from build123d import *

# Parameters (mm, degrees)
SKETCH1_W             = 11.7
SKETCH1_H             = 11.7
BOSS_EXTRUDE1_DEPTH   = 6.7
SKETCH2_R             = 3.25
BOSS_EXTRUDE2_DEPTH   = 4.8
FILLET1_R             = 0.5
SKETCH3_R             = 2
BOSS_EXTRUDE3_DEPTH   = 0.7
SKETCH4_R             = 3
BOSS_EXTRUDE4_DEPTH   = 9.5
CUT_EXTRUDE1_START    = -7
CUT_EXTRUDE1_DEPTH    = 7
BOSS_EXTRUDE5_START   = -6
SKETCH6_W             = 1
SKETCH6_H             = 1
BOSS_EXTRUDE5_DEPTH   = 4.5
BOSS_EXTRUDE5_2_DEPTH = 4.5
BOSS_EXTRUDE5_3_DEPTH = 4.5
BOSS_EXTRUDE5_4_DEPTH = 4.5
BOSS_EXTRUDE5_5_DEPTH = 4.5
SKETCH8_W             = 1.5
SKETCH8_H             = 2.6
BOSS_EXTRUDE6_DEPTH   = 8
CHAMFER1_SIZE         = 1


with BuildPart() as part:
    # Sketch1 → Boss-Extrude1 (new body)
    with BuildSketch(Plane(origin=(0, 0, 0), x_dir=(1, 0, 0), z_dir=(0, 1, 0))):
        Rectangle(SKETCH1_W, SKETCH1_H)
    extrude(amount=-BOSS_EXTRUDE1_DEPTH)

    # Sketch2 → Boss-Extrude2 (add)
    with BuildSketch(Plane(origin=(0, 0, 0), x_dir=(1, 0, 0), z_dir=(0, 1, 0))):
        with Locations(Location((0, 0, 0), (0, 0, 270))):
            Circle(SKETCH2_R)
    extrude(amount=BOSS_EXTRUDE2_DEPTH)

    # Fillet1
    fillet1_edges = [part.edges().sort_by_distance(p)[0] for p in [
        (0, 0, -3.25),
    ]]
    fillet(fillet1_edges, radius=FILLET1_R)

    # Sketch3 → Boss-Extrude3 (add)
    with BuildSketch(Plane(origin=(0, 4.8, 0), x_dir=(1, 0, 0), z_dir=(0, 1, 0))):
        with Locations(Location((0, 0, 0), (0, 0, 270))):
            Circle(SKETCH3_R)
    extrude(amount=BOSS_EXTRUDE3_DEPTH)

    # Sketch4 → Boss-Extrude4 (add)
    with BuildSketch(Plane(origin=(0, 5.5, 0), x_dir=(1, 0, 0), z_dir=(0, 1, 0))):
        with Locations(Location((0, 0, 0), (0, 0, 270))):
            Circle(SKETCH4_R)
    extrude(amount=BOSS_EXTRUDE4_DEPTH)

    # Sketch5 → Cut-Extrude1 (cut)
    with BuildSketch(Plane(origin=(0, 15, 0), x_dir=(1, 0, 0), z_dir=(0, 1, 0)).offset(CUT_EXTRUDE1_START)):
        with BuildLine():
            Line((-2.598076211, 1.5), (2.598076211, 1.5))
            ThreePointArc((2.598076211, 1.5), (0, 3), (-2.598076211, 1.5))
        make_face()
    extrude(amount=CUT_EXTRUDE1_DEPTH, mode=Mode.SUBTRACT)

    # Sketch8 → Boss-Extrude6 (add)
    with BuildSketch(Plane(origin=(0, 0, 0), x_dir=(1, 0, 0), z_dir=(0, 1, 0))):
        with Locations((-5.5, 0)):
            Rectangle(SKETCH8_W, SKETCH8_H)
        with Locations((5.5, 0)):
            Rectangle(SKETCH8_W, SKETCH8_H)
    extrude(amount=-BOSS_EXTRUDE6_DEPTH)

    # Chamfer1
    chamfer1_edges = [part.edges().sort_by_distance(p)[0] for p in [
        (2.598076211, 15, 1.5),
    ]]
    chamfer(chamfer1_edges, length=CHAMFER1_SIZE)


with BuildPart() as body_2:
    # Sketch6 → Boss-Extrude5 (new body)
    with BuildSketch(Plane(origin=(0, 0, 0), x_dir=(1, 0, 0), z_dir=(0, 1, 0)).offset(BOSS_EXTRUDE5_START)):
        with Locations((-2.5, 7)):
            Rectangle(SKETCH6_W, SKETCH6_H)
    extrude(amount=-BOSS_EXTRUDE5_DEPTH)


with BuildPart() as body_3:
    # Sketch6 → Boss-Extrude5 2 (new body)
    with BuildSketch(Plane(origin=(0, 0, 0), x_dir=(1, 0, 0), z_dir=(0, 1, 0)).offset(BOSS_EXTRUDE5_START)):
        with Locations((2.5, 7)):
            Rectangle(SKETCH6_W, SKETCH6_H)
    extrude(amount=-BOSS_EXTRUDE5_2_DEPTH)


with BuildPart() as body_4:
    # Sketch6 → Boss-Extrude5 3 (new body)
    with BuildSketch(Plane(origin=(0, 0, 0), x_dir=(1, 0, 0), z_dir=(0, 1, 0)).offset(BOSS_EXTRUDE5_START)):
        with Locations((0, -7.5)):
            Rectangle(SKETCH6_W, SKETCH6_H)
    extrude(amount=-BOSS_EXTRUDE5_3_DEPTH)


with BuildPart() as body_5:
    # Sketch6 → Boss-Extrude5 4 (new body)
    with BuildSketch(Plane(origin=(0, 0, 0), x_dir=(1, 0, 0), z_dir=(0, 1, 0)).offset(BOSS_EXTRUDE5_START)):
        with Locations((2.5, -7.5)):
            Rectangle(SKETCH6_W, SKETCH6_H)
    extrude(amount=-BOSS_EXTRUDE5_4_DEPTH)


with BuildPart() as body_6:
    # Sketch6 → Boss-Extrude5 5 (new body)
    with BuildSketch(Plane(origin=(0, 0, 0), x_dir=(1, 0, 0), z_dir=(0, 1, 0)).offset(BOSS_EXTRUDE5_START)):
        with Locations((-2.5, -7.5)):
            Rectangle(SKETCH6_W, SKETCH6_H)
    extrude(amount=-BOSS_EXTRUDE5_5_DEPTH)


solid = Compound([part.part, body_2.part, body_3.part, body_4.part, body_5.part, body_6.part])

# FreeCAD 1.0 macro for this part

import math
import FreeCAD as App
import Part
import Sketcher

V = App.Vector


def edges_at(feature, points):
    """Names of the edges that pass closest to the given points."""
    edges = feature.Shape.Edges
    near = lambda p: min(range(len(edges)), key=lambda i: edges[i].distToShape(Part.Vertex(*p))[0])
    return sorted({f"Edge{near(p) + 1}" for p in points})


def add_polygon(sketch, points):
    """Adds a closed chain of lines whose ends are joined by coincident constraints."""
    first, n = sketch.GeometryCount, len(points)
    for a, b in zip(points, points[1:] + points[:1]):
        sketch.addGeometry(Part.LineSegment(App.Vector(*a, 0), App.Vector(*b, 0)), False)
    for i in range(n):
        sketch.addConstraint(Sketcher.Constraint("Coincident", first + i, 2, first + (i + 1) % n, 1))

doc = App.newDocument("Part")
body = doc.addObject("PartDesign::Body", "Body")

# Sketch on XZ plane
sketch1 = body.newObject("Sketcher::SketchObject", "Sketch")
sketch1.AttachmentSupport = (doc.getObject("XZ_Plane"), [""])
sketch1.MapMode = "FlatFace"
add_polygon(sketch1, [(-6, -6), (-6, 6), (6, 6), (6, -6)])  # lines 0-3
sketch1.addConstraint(Sketcher.Constraint("Vertical", 0))
sketch1.addConstraint(Sketcher.Constraint("Horizontal", 1))
sketch1.addConstraint(Sketcher.Constraint("Vertical", 2))
sketch1.addConstraint(Sketcher.Constraint("Horizontal", 3))
sketch1.addConstraint(Sketcher.Constraint("Symmetric", 0, 2, 2, 2, -1, 1))
sketch1.addConstraint(Sketcher.Constraint("Equal", 3, 0))
sketch1.addConstraint(Sketcher.Constraint("DistanceX", 1, 1, 1, 2, 11.7))
pad1 = body.newObject("PartDesign::Pad", "Pad")
pad1.Profile = sketch1
pad1.Length = 6.7

# Sketch on XZ plane
sketch2 = body.newObject("Sketcher::SketchObject", "Sketch001")
sketch2.AttachmentSupport = (doc.getObject("XZ_Plane"), [""])
sketch2.MapMode = "FlatFace"
sketch2.addGeometry(Part.Circle(V(0, 0, 0), V(0, 0, 1), 3.2), False)
sketch2.addConstraint(Sketcher.Constraint("Coincident", 0, 3, -1, 1))
sketch2.addConstraint(Sketcher.Constraint("Diameter", 0, 6.5))
pad2 = body.newObject("PartDesign::Pad", "Pad001")
pad2.Profile = sketch2
pad2.Length = 4.8
pad2.Reversed = True
doc.recompute()

fillet = body.newObject("PartDesign::Fillet", "Fillet")
fillet.Base = (pad2, edges_at(pad2, [(0, 0, -3.25)]))
fillet.Radius = 0.5

# Sketch on XZ plane
sketch3 = body.newObject("Sketcher::SketchObject", "Sketch002")
sketch3.AttachmentSupport = (doc.getObject("XZ_Plane"), [""])
sketch3.MapMode = "FlatFace"
sketch3.AttachmentOffset = App.Placement(V(0, 0, -4.8), App.Rotation())
sketch3.addGeometry(Part.Circle(V(0, 0, 0), V(0, 0, 1), 2), False)
sketch3.addConstraint(Sketcher.Constraint("Coincident", 0, 3, -1, 1))
sketch3.addConstraint(Sketcher.Constraint("Diameter", 0, 4.0))
pad3 = body.newObject("PartDesign::Pad", "Pad002")
pad3.Profile = sketch3
pad3.Length = 0.7
pad3.Reversed = True

# Sketch on XZ plane
sketch4 = body.newObject("Sketcher::SketchObject", "Sketch003")
sketch4.AttachmentSupport = (doc.getObject("XZ_Plane"), [""])
sketch4.MapMode = "FlatFace"
sketch4.AttachmentOffset = App.Placement(V(0, 0, -5.5), App.Rotation())
sketch4.addGeometry(Part.Circle(V(0, 0, 0), V(0, 0, 1), 3), False)
sketch4.addConstraint(Sketcher.Constraint("Coincident", 0, 3, -1, 1))
sketch4.addConstraint(Sketcher.Constraint("Diameter", 0, 6.0))
pad4 = body.newObject("PartDesign::Pad", "Pad003")
pad4.Profile = sketch4
pad4.Length = 9.5
pad4.Reversed = True

# Sketch on XZ plane
sketch5 = body.newObject("Sketcher::SketchObject", "Sketch004")
sketch5.AttachmentSupport = (doc.getObject("XZ_Plane"), [""])
sketch5.MapMode = "FlatFace"
sketch5.AttachmentOffset = App.Placement(V(0, 0, -8), App.Rotation())
sketch5.addGeometry(Part.LineSegment(V(-2.6, -1.5, 0), V(2.6, -1.5, 0)), False)
sketch5.addGeometry(Part.ArcOfCircle(Part.Circle(V(0, 0, 0), V(0, 0, 1), 3), math.radians(-150), math.radians(-30)), False)
sketch5.addConstraint(Sketcher.Constraint("Coincident", 0, 1, 1, 1))
sketch5.addConstraint(Sketcher.Constraint("Coincident", 1, 2, 0, 2))
sketch5.addConstraint(Sketcher.Constraint("Horizontal", 0))
sketch5.addConstraint(Sketcher.Constraint("Coincident", 1, 3, -1, 1))
sketch5.addConstraint(Sketcher.Constraint("Radius", 1, 3.0))
sketch5.addConstraint(Sketcher.Constraint("DistanceY", 0, 1, -1, 1, 1.5))
pocket1 = body.newObject("PartDesign::Pocket", "Pocket")
pocket1.Profile = sketch5
pocket1.Length = 7

# Sketch on XZ plane
sketch6 = body.newObject("Sketcher::SketchObject", "Sketch005")
sketch6.AttachmentSupport = (doc.getObject("XZ_Plane"), [""])
sketch6.MapMode = "FlatFace"
add_polygon(sketch6, [(-6.2, -1.3), (-6.2, 1.3), (-4.8, 1.3), (-4.8, -1.3)])  # lines 0-3
add_polygon(sketch6, [(4.8, -1.3), (4.8, 1.3), (6.2, 1.3), (6.2, -1.3)])  # lines 4-7
sketch6.addConstraint(Sketcher.Constraint("Vertical", 0))
sketch6.addConstraint(Sketcher.Constraint("Horizontal", 1))
sketch6.addConstraint(Sketcher.Constraint("Vertical", 2))
sketch6.addConstraint(Sketcher.Constraint("Horizontal", 3))
sketch6.addConstraint(Sketcher.Constraint("Vertical", 4))
sketch6.addConstraint(Sketcher.Constraint("Horizontal", 5))
sketch6.addConstraint(Sketcher.Constraint("Vertical", 6))
sketch6.addConstraint(Sketcher.Constraint("Horizontal", 7))
sketch6.addConstraint(Sketcher.Constraint("Symmetric", 2, 2, 4, 2, -1, 1))
sketch6.addConstraint(Sketcher.Constraint("Symmetric", 0, 2, 6, 2, -1, 1))
sketch6.addConstraint(Sketcher.Constraint("Horizontal", 1, 2, 4, 2))
sketch6.addConstraint(Sketcher.Constraint("DistanceX", 1, 1, 1, 2, 1.5))
sketch6.addConstraint(Sketcher.Constraint("DistanceY", 0, 1, 0, 2, 2.6))
sketch6.addConstraint(Sketcher.Constraint("DistanceX", 0, 2, 4, 2, 11.0))
pad5 = body.newObject("PartDesign::Pad", "Pad004")
pad5.Profile = sketch6
pad5.Length = 8
doc.recompute()

chamfer = body.newObject("PartDesign::Chamfer", "Chamfer")
chamfer.Base = (pad5, edges_at(pad5, [(2.598, 15, 1.5)]))
chamfer.Size = 1
body2 = doc.addObject("PartDesign::Body", "Body001")

# Sketch on XZ plane
sketch7 = body2.newObject("Sketcher::SketchObject", "Sketch006")
sketch7.AttachmentSupport = (doc.getObject("XZ_Plane001"), [""])
sketch7.MapMode = "FlatFace"
sketch7.AttachmentOffset = App.Placement(V(0, 0, 6), App.Rotation())
add_polygon(sketch7, [(-3, -7.5), (-3, -6.5), (-2, -6.5), (-2, -7.5)])  # lines 0-3
sketch7.addConstraint(Sketcher.Constraint("Vertical", 0))
sketch7.addConstraint(Sketcher.Constraint("Horizontal", 1))
sketch7.addConstraint(Sketcher.Constraint("Vertical", 2))
sketch7.addConstraint(Sketcher.Constraint("Horizontal", 3))
sketch7.addConstraint(Sketcher.Constraint("Equal", 3, 0))
sketch7.addConstraint(Sketcher.Constraint("DistanceX", 1, 1, 1, 2, 1.0))
sketch7.addConstraint(Sketcher.Constraint("DistanceX", 0, 2, -1, 1, 3.0))
sketch7.addConstraint(Sketcher.Constraint("DistanceY", 0, 2, -1, 1, 6.5))
pad6 = body2.newObject("PartDesign::Pad", "Pad005")
pad6.Profile = sketch7
pad6.Length = 4.5
body3 = doc.addObject("PartDesign::Body", "Body002")

# Sketch on XZ plane
sketch8 = body3.newObject("Sketcher::SketchObject", "Sketch007")
sketch8.AttachmentSupport = (doc.getObject("XZ_Plane002"), [""])
sketch8.MapMode = "FlatFace"
sketch8.AttachmentOffset = App.Placement(V(0, 0, 6), App.Rotation())
add_polygon(sketch8, [(2, -7.5), (2, -6.5), (3, -6.5), (3, -7.5)])  # lines 0-3
sketch8.addConstraint(Sketcher.Constraint("Vertical", 0))
sketch8.addConstraint(Sketcher.Constraint("Horizontal", 1))
sketch8.addConstraint(Sketcher.Constraint("Vertical", 2))
sketch8.addConstraint(Sketcher.Constraint("Horizontal", 3))
sketch8.addConstraint(Sketcher.Constraint("Equal", 3, 0))
sketch8.addConstraint(Sketcher.Constraint("DistanceX", 1, 1, 1, 2, 1.0))
sketch8.addConstraint(Sketcher.Constraint("DistanceX", -1, 1, 0, 2, 2.0))
sketch8.addConstraint(Sketcher.Constraint("DistanceY", 0, 2, -1, 1, 6.5))
pad7 = body3.newObject("PartDesign::Pad", "Pad006")
pad7.Profile = sketch8
pad7.Length = 4.5
body4 = doc.addObject("PartDesign::Body", "Body003")

# Sketch on XZ plane
sketch9 = body4.newObject("Sketcher::SketchObject", "Sketch008")
sketch9.AttachmentSupport = (doc.getObject("XZ_Plane003"), [""])
sketch9.MapMode = "FlatFace"
sketch9.AttachmentOffset = App.Placement(V(0, 0, 6), App.Rotation())
add_polygon(sketch9, [(-0.5, 7), (-0.5, 8), (0.5, 8), (0.5, 7)])  # lines 0-3
sketch9.addConstraint(Sketcher.Constraint("Vertical", 0))
sketch9.addConstraint(Sketcher.Constraint("Horizontal", 1))
sketch9.addConstraint(Sketcher.Constraint("Vertical", 2))
sketch9.addConstraint(Sketcher.Constraint("Horizontal", 3))
sketch9.addConstraint(Sketcher.Constraint("Equal", 3, 0))
sketch9.addConstraint(Sketcher.Constraint("DistanceX", 1, 1, 1, 2, 1.0))
sketch9.addConstraint(Sketcher.Constraint("DistanceY", -1, 1, 0, 2, 8.0))
sketch9.addConstraint(Sketcher.Constraint("DistanceX", 0, 2, -1, 1, 0.5))
pad8 = body4.newObject("PartDesign::Pad", "Pad007")
pad8.Profile = sketch9
pad8.Length = 4.5
body5 = doc.addObject("PartDesign::Body", "Body004")

# Sketch on XZ plane
sketch10 = body5.newObject("Sketcher::SketchObject", "Sketch009")
sketch10.AttachmentSupport = (doc.getObject("XZ_Plane004"), [""])
sketch10.MapMode = "FlatFace"
sketch10.AttachmentOffset = App.Placement(V(0, 0, 6), App.Rotation())
add_polygon(sketch10, [(2, 7), (2, 8), (3, 8), (3, 7)])  # lines 0-3
sketch10.addConstraint(Sketcher.Constraint("Vertical", 0))
sketch10.addConstraint(Sketcher.Constraint("Horizontal", 1))
sketch10.addConstraint(Sketcher.Constraint("Vertical", 2))
sketch10.addConstraint(Sketcher.Constraint("Horizontal", 3))
sketch10.addConstraint(Sketcher.Constraint("Equal", 3, 0))
sketch10.addConstraint(Sketcher.Constraint("DistanceX", 1, 1, 1, 2, 1.0))
sketch10.addConstraint(Sketcher.Constraint("DistanceX", -1, 1, 0, 2, 2.0))
sketch10.addConstraint(Sketcher.Constraint("DistanceY", -1, 1, 0, 2, 8.0))
pad9 = body5.newObject("PartDesign::Pad", "Pad008")
pad9.Profile = sketch10
pad9.Length = 4.5
body6 = doc.addObject("PartDesign::Body", "Body005")

# Sketch on XZ plane
sketch11 = body6.newObject("Sketcher::SketchObject", "Sketch010")
sketch11.AttachmentSupport = (doc.getObject("XZ_Plane005"), [""])
sketch11.MapMode = "FlatFace"
sketch11.AttachmentOffset = App.Placement(V(0, 0, 6), App.Rotation())
add_polygon(sketch11, [(-3, 7), (-3, 8), (-2, 8), (-2, 7)])  # lines 0-3
sketch11.addConstraint(Sketcher.Constraint("Vertical", 0))
sketch11.addConstraint(Sketcher.Constraint("Horizontal", 1))
sketch11.addConstraint(Sketcher.Constraint("Vertical", 2))
sketch11.addConstraint(Sketcher.Constraint("Horizontal", 3))
sketch11.addConstraint(Sketcher.Constraint("Equal", 3, 0))
sketch11.addConstraint(Sketcher.Constraint("DistanceX", 1, 1, 1, 2, 1.0))
sketch11.addConstraint(Sketcher.Constraint("DistanceX", 0, 2, -1, 1, 3.0))
sketch11.addConstraint(Sketcher.Constraint("DistanceY", -1, 1, 0, 2, 8.0))
pad10 = body6.newObject("PartDesign::Pad", "Pad009")
pad10.Profile = sketch11
pad10.Length = 4.5

doc.recompute()
